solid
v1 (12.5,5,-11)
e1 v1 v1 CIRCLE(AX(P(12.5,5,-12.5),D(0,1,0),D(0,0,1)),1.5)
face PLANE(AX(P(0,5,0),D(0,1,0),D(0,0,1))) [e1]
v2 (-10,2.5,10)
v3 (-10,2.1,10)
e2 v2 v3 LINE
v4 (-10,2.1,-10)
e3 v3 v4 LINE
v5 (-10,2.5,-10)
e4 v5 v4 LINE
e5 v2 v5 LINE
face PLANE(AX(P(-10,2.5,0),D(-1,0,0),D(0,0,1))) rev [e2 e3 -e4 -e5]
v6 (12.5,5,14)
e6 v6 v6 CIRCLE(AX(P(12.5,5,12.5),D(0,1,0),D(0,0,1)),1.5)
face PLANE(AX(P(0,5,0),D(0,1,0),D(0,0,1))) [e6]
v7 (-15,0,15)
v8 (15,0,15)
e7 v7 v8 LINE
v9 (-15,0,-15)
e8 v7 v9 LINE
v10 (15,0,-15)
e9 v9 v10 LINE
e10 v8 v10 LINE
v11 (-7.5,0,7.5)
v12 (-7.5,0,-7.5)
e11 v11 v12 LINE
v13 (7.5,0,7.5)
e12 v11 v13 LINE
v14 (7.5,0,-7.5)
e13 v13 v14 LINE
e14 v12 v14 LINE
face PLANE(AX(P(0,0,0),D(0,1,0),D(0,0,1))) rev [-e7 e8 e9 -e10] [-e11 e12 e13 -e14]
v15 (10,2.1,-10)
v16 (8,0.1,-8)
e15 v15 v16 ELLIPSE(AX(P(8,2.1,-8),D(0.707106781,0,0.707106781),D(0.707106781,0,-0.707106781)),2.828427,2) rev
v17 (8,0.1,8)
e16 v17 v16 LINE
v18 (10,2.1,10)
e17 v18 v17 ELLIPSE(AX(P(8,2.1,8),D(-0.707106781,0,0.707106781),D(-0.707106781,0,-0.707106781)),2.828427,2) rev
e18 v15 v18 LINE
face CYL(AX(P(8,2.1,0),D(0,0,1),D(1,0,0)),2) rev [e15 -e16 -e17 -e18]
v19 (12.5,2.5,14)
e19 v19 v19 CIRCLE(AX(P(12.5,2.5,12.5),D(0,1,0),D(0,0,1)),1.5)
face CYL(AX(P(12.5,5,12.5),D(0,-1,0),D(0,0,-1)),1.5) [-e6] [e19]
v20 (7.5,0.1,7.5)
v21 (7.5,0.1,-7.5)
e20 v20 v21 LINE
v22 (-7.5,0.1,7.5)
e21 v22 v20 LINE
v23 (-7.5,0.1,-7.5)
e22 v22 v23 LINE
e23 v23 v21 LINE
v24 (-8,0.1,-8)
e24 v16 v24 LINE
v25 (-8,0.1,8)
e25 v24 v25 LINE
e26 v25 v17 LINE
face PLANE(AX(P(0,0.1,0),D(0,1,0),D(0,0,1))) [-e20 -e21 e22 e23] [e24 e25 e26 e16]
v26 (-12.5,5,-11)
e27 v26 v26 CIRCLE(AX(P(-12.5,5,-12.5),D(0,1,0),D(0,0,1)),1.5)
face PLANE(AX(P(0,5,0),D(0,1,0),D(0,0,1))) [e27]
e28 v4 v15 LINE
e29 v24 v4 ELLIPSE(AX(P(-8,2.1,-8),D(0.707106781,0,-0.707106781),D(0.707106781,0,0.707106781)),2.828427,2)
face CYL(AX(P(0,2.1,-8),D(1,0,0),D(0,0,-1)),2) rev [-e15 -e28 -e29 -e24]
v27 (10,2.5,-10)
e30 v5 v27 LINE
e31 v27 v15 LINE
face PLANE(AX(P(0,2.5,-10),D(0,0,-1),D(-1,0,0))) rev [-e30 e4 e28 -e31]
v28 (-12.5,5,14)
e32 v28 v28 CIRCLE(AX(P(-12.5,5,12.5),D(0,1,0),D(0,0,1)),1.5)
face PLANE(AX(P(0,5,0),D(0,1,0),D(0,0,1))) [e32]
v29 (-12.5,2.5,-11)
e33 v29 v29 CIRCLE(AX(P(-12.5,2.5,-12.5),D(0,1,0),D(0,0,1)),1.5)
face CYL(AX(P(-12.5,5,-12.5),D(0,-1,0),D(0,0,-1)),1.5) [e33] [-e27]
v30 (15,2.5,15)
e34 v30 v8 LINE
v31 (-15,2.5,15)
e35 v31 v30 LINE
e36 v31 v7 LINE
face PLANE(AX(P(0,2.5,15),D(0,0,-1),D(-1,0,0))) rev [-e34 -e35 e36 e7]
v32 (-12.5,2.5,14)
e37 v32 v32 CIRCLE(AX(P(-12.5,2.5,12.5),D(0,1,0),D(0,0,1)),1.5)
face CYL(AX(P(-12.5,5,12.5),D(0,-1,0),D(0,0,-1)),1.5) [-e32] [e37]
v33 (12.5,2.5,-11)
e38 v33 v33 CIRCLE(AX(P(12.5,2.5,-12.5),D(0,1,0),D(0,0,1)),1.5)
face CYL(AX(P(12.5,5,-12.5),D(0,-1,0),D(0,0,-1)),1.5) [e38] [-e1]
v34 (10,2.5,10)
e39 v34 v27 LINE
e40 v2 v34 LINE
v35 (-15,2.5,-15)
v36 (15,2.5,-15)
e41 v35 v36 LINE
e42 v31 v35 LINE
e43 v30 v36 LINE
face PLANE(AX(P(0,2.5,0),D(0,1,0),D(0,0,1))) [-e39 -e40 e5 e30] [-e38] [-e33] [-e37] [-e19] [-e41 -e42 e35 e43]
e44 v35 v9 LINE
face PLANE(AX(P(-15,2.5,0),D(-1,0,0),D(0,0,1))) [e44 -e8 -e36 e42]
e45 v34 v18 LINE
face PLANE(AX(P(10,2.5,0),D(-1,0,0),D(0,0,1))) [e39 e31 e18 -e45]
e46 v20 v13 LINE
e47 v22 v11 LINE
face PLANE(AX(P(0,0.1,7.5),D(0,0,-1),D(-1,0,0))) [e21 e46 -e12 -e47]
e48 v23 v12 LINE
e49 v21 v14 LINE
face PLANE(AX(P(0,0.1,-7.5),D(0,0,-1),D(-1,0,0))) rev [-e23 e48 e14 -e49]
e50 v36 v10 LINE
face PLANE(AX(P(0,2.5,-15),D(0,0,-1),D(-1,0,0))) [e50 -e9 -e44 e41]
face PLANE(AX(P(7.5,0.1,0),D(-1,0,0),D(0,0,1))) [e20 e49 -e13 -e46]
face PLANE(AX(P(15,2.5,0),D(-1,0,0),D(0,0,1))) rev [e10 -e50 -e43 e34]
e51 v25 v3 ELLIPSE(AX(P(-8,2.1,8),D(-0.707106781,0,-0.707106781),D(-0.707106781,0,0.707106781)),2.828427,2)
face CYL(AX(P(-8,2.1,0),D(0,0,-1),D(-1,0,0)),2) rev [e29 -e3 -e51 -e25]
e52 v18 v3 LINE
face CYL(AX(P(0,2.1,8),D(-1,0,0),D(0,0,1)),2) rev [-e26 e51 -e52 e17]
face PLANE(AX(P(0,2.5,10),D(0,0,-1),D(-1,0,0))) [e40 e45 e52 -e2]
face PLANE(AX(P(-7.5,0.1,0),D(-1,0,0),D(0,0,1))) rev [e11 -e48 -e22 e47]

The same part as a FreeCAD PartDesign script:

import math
import FreeCAD as App
import Part
import Sketcher


def edges_at(feature, points):
    """Names of the edges that pass closest to the given points."""
    edges = feature.Shape.Edges
    near = lambda p: min(range(len(edges)), key=lambda i: edges[i].distToShape(Part.Vertex(*p))[0])
    return sorted({f"Edge{near(p) + 1}" for p in points})


def add_polygon(sketch, points):
    """Adds a closed chain of lines whose ends are joined by coincident constraints."""
    first, n = sketch.GeometryCount, len(points)
    for a, b in zip(points, points[1:] + points[:1]):
        sketch.addGeometry(Part.LineSegment(App.Vector(*a, 0), App.Vector(*b, 0)), False)
    for i in range(n):
        sketch.addConstraint(Sketcher.Constraint("Coincident", first + i, 2, first + (i + 1) % n, 1))

doc = App.newDocument("Part")
params = doc.addObject("Spreadsheet::Sheet", "Params")
for row, (alias, value) in enumerate([
    ("sketch1_width", "20 mm"),
    ("sketch1_width2", "15 mm"),
    ("pad1_length", "0.1 mm"),
    ("sketch2_width", "30 mm"),
    ("sketch2_width2", "20 mm"),
    ("pad2_length", "2.5 mm"),
    ("fillet_radius", "2 mm"),
    ("sketch3_radius", "1.5 mm"),
    ("pad3_length", "2.5 mm"),
], start=1):
    params.set(f"A{row}", alias)
    params.set(f"B{row}", "=" + value)
    params.setAlias(f"B{row}", alias)

body = doc.addObject("PartDesign::Body", "Body")

# Sketch on XZ plane
sketch1 = doc.addObject("Sketcher::SketchObject", "Sketch")
body.addObject(sketch1)
sketch1.AttachmentSupport = (doc.XZ_Plane, [""])
sketch1.MapMode = "FlatFace"
add_polygon(sketch1, [(-10, -10), (-10, 10), (10, 10), (10, -10)])  # lines 0-3
add_polygon(sketch1, [(8, 8), (-8, 8), (-8, -8), (8, -8)])  # lines 4-7
sketch1.addConstraint(Sketcher.Constraint("Vertical", 0))
sketch1.addConstraint(Sketcher.Constraint("Horizontal", 1))
sketch1.addConstraint(Sketcher.Constraint("Vertical", 2))
sketch1.addConstraint(Sketcher.Constraint("Horizontal", 3))
sketch1.addConstraint(Sketcher.Constraint("Horizontal", 4))
sketch1.addConstraint(Sketcher.Constraint("Vertical", 5))
sketch1.addConstraint(Sketcher.Constraint("Horizontal", 6))
sketch1.addConstraint(Sketcher.Constraint("Vertical", 7))
sketch1.addConstraint(Sketcher.Constraint("Symmetric", 0, 2, 2, 2, -1, 1))
sketch1.addConstraint(Sketcher.Constraint("Symmetric", 4, 2, 6, 2, -1, 1))
sketch1.addConstraint(Sketcher.Constraint("Equal", 3, 0))
sketch1.addConstraint(Sketcher.Constraint("Equal", 6, 5))
sketch1.addConstraint(Sketcher.Constraint("DistanceX", 1, 1, 1, 2, 20.0))
sketch1.addConstraint(Sketcher.Constraint("DistanceX", 4, 2, 4, 1, 15.0))
sketch1.setExpression("Constraints[20]", "Params.sketch1_width")
sketch1.setExpression("Constraints[21]", "Params.sketch1_width2")
pad1 = doc.addObject("PartDesign::Pad", "Pad")
body.addObject(pad1)
pad1.Profile = sketch1
pad1.setExpression("Length", "Params.pad1_length")
pad1.Reversed = True

# Sketch on XZ plane
sketch2 = doc.addObject("Sketcher::SketchObject", "Sketch001")
body.addObject(sketch2)
sketch2.AttachmentSupport = (doc.XZ_Plane, [""])
sketch2.MapMode = "FlatFace"
add_polygon(sketch2, [(-15, -15), (-15, 15), (15, 15), (15, -15)])  # lines 0-3
add_polygon(sketch2, [(10, 10), (-10, 10), (-10, -10), (10, -10)])  # lines 4-7
sketch2.addConstraint(Sketcher.Constraint("Vertical", 0))
sketch2.addConstraint(Sketcher.Constraint("Horizontal", 1))
sketch2.addConstraint(Sketcher.Constraint("Vertical", 2))
sketch2.addConstraint(Sketcher.Constraint("Horizontal", 3))
sketch2.addConstraint(Sketcher.Constraint("Horizontal", 4))
sketch2.addConstraint(Sketcher.Constraint("Vertical", 5))
sketch2.addConstraint(Sketcher.Constraint("Horizontal", 6))
sketch2.addConstraint(Sketcher.Constraint("Vertical", 7))
sketch2.addConstraint(Sketcher.Constraint("Symmetric", 0, 2, 2, 2, -1, 1))
sketch2.addConstraint(Sketcher.Constraint("Symmetric", 4, 2, 6, 2, -1, 1))
sketch2.addConstraint(Sketcher.Constraint("Equal", 3, 0))
sketch2.addConstraint(Sketcher.Constraint("Equal", 6, 5))
sketch2.addConstraint(Sketcher.Constraint("DistanceX", 1, 1, 1, 2, 30.0))
sketch2.addConstraint(Sketcher.Constraint("DistanceX", 4, 2, 4, 1, 20.0))
sketch2.setExpression("Constraints[20]", "Params.sketch2_width")
sketch2.setExpression("Constraints[21]", "Params.sketch2_width2")
pad2 = doc.addObject("PartDesign::Pad", "Pad001")
body.addObject(pad2)
pad2.Profile = sketch2
pad2.setExpression("Length", "Params.pad2_length")
pad2.Reversed = True
doc.recompute()

fillet = doc.addObject("PartDesign::Fillet", "Fillet")
body.addObject(fillet)
fillet.Base = (pad2, edges_at(pad2, [
    (0, 0.1, 10),
    (10, 0.1, 0),
    (0, 0.1, -10),
    (-10, 0.1, 0),
]))
fillet.setExpression("Radius", "Params.fillet_radius")

# Sketch on XZ plane
sketch3 = doc.addObject("Sketcher::SketchObject", "Sketch002")
body.addObject(sketch3)
sketch3.AttachmentSupport = (doc.XZ_Plane, [""])
sketch3.MapMode = "FlatFace"
sketch3.AttachmentOffset = App.Placement(App.Vector(0, 0, -2.5), App.Rotation())
sketch3.addGeometry(Part.ArcOfCircle(Part.Circle(App.Vector(12.5, 12.5, 0), App.Vector(0, 0, 1), 1.5), math.radians(-135), math.radians(0)), False)
sketch3.addGeometry(Part.ArcOfCircle(Part.Circle(App.Vector(12.5, 12.5, 0), App.Vector(0, 0, 1), 1.5), math.radians(45), math.radians(225)), False)
sketch3.addGeometry(Part.ArcOfCircle(Part.Circle(App.Vector(12.5, 12.5, 0), App.Vector(0, 0, 1), 1.5), math.radians(0), math.radians(45)), False)
sketch3.addGeometry(Part.ArcOfCircle(Part.Circle(App.Vector(12.5, -12.5, 0), App.Vector(0, 0, 1), 1.5), math.radians(-45), math.radians(0)), False)
sketch3.addGeometry(Part.ArcOfCircle(Part.Circle(App.Vector(12.5, -12.5, 0), App.Vector(0, 0, 1), 1.5), math.radians(135), math.radians(315)), False)
sketch3.addGeometry(Part.ArcOfCircle(Part.Circle(App.Vector(12.5, -12.5, 0), App.Vector(0, 0, 1), 1.5), math.radians(0), math.radians(135)), False)
sketch3.addGeometry(Part.ArcOfCircle(Part.Circle(App.Vector(-12.5, -12.5, 0), App.Vector(0, 0, 1), 1.5), math.radians(-135), math.radians(0)), False)
sketch3.addGeometry(Part.ArcOfCircle(Part.Circle(App.Vector(-12.5, -12.5, 0), App.Vector(0, 0, 1), 1.5), math.radians(45), math.radians(225)), False)
sketch3.addGeometry(Part.ArcOfCircle(Part.Circle(App.Vector(-12.5, -12.5, 0), App.Vector(0, 0, 1), 1.5), math.radians(0), math.radians(45)), False)
sketch3.addGeometry(Part.ArcOfCircle(Part.Circle(App.Vector(-12.5, 12.5, 0), App.Vector(0, 0, 1), 1.5), math.radians(-45), math.radians(0)), False)
sketch3.addGeometry(Part.ArcOfCircle(Part.Circle(App.Vector(-12.5, 12.5, 0), App.Vector(0, 0, 1), 1.5), math.radians(135), math.radians(315)), False)
sketch3.addGeometry(Part.ArcOfCircle(Part.Circle(App.Vector(-12.5, 12.5, 0), App.Vector(0, 0, 1), 1.5), math.radians(0), math.radians(135)), False)
sketch3.addConstraint(Sketcher.Constraint("Tangent", 0, 1, 1, 2))
sketch3.addConstraint(Sketcher.Constraint("Tangent", 1, 1, 2, 2))
sketch3.addConstraint(Sketcher.Constraint("Tangent", 2, 1, 0, 2))
sketch3.addConstraint(Sketcher.Constraint("Tangent", 3, 1, 4, 2))
sketch3.addConstraint(Sketcher.Constraint("Tangent", 4, 1, 5, 2))
sketch3.addConstraint(Sketcher.Constraint("Tangent", 5, 1, 3, 2))
sketch3.addConstraint(Sketcher.Constraint("Tangent", 6, 1, 7, 2))
sketch3.addConstraint(Sketcher.Constraint("Tangent", 7, 1, 8, 2))
sketch3.addConstraint(Sketcher.Constraint("Tangent", 8, 1, 6, 2))
sketch3.addConstraint(Sketcher.Constraint("Tangent", 9, 1, 10, 2))
sketch3.addConstraint(Sketcher.Constraint("Tangent", 10, 1, 11, 2))
sketch3.addConstraint(Sketcher.Constraint("Tangent", 11, 1, 9, 2))
sketch3.addConstraint(Sketcher.Constraint("Equal", 2, 3))
sketch3.addConstraint(Sketcher.Constraint("Equal", 5, 6))
sketch3.addConstraint(Sketcher.Constraint("Equal", 8, 9))
sketch3.addConstraint(Sketcher.Constraint("Symmetric", 0, 3, 6, 3, -1, 1))
sketch3.addConstraint(Sketcher.Constraint("Symmetric", 3, 3, 9, 3, -1, 1))
sketch3.addConstraint(Sketcher.Constraint("Symmetric", 3, 3, 6, 3, -2))
sketch3.addConstraint(Sketcher.Constraint("Horizontal", 11, 3, 2, 1))
sketch3.addConstraint(Sketcher.Constraint("Horizontal", 8, 3, 5, 1))
sketch3.addConstraint(Sketcher.Constraint("Horizontal", 3, 1, 6, 1))
sketch3.addConstraint(Sketcher.Constraint("Horizontal", 4, 1, 7, 1))
sketch3.addConstraint(Sketcher.Constraint("Horizontal", 5, 1, 8, 1))
sketch3.addConstraint(Sketcher.Constraint("Horizontal", 0, 1, 9, 1))
sketch3.addConstraint(Sketcher.Constraint("Horizontal", 1, 1, 10, 1))
sketch3.addConstraint(Sketcher.Constraint("Horizontal", 2, 1, 11, 1))
sketch3.addConstraint(Sketcher.Constraint("Vertical", 1, 1, 3, 1))
sketch3.addConstraint(Sketcher.Constraint("Vertical", 0, 1, 4, 1))
sketch3.addConstraint(Sketcher.Constraint("Radius", 0, 1.5))
sketch3.addConstraint(Sketcher.Constraint("DistanceX", -1, 1, 2, 1, 14.0))
sketch3.addConstraint(Sketcher.Constraint("DistanceY", 3, 3, 0, 3, 25.0))
sketch3.addConstraint(Sketcher.Constraint("DistanceY", 3, 1, 0, 1, 25.0))
sketch3.addConstraint(Sketcher.Constraint("DistanceX", -1, 1, 0, 1, 11.43934))
sketch3.setExpression("Constraints[28]", "Params.sketch3_radius")
pad3 = doc.addObject("PartDesign::Pad", "Pad002")
body.addObject(pad3)
pad3.Profile = sketch3
pad3.setExpression("Length", "Params.pad3_length")
pad3.Reversed = True

doc.recompute()
